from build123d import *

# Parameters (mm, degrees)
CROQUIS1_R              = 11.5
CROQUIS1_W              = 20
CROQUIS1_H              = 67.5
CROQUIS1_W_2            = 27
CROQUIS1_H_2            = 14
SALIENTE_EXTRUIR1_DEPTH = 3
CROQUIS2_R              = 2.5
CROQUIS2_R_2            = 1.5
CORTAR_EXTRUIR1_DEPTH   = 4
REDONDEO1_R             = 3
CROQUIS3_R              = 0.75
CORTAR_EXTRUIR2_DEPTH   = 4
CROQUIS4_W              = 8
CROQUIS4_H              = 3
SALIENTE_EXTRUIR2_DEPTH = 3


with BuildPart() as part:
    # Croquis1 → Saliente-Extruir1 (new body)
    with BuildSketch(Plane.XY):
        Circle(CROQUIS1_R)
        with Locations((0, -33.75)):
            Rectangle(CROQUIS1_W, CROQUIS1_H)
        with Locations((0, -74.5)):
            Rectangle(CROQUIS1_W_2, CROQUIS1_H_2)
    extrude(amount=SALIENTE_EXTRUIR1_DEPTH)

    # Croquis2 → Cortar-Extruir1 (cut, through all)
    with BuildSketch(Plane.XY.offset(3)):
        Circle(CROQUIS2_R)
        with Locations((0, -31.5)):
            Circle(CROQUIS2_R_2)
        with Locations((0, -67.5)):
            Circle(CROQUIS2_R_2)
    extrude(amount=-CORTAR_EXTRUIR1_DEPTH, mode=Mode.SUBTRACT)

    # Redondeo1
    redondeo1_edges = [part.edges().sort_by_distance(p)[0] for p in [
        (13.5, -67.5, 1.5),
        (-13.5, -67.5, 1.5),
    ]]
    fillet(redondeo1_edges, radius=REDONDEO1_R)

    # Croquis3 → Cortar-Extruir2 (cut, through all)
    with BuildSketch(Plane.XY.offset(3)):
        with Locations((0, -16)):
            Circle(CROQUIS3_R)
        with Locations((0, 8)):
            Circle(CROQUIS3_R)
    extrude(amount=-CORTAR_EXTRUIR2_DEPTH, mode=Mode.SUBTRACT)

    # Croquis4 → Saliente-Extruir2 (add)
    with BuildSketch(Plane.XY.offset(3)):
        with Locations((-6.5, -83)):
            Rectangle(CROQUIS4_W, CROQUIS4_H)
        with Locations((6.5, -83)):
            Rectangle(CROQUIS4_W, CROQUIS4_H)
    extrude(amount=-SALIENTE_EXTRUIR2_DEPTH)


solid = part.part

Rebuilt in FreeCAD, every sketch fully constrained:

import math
import FreeCAD as App
import Part
import Sketcher
from FreeCAD import Vector


def edges_at(feature, points):
    """Names of the edges that pass closest to the given points."""
    edges = feature.Shape.Edges
    near = lambda p: min(range(len(edges)), key=lambda i: edges[i].distToShape(Part.Vertex(*p))[0])
    return sorted({f"Edge{near(p) + 1}" for p in points})

doc = App.newDocument("Part")
params = doc.addObject("Spreadsheet::Sheet", "Params")
for row, (alias, value) in enumerate([
    ("sketch1_radius", "11.5 mm"),
    ("sketch1_width", "27 mm"),
    ("sketch1_height", "14 mm"),
    ("sketch1_width2", "3.5 mm"),
    ("pad1_length", "3 mm"),
    ("sketch2_diameter", "5 mm"),
    ("sketch2_diameter2", "3 mm"),
    ("fillet_radius", "3 mm"),
    ("sketch3_diameter", "1.5 mm"),
    ("sketch4_width", "8 mm"),
    ("sketch4_height", "3 mm"),
    ("pad2_length", "3 mm"),
], start=1):
    params.set(f"A{row}", alias)
    params.set(f"B{row}", "=" + value)
    params.setAlias(f"B{row}", alias)

body = doc.addObject("PartDesign::Body", "Body")

sketch1 = body.newObject("Sketcher::SketchObject", "Sketch")
sketch1.AttachmentSupport = (doc.getObject("XY_Plane"), [""])
sketch1.MapMode = "FlatFace"
sketch1.addGeometry(Part.ArcOfCircle(Part.Circle(Vector(0, 0, 0), Vector(0, 0, 1), 11.5), math.radians(-30), math.radians(210)), False)
sketch1.addGeometry(Part.LineSegment(Vector(-10, -5.7, 0), Vector(-10, -67.5, 0)), False)
sketch1.addGeometry(Part.LineSegment(Vector(-10, -67.5, 0), Vector(-13.5, -67.5, 0)), False)
sketch1.addGeometry(Part.LineSegment(Vector(-13.5, -67.5, 0), Vector(-13.5, -81.5, 0)), False)
sketch1.addGeometry(Part.LineSegment(Vector(-13.5, -81.5, 0), Vector(13.5, -81.5, 0)), False)
sketch1.addGeometry(Part.LineSegment(Vector(13.5, -81.5, 0), Vector(13.5, -67.5, 0)), False)
sketch1.addGeometry(Part.LineSegment(Vector(13.5, -67.5, 0), Vector(10, -67.5, 0)), False)
sketch1.addGeometry(Part.LineSegment(Vector(10, -67.5, 0), Vector(10, -5.7, 0)), False)
sketch1.addConstraint(Sketcher.Constraint("Coincident", 0, 2, 1, 1))
sketch1.addConstraint(Sketcher.Constraint("Coincident", 1, 2, 2, 1))
sketch1.addConstraint(Sketcher.Constraint("Coincident", 2, 2, 3, 1))
sketch1.addConstraint(Sketcher.Constraint("Coincident", 3, 2, 4, 1))
sketch1.addConstraint(Sketcher.Constraint("Coincident", 4, 2, 5, 1))
sketch1.addConstraint(Sketcher.Constraint("Coincident", 5, 2, 6, 1))
sketch1.addConstraint(Sketcher.Constraint("Coincident", 6, 2, 7, 1))
sketch1.addConstraint(Sketcher.Constraint("Coincident", 7, 2, 0, 1))
sketch1.addConstraint(Sketcher.Constraint("Vertical", 1))
sketch1.addConstraint(Sketcher.Constraint("Horizontal", 2))
sketch1.addConstraint(Sketcher.Constraint("Vertical", 3))
sketch1.addConstraint(Sketcher.Constraint("Horizontal", 4))
sketch1.addConstraint(Sketcher.Constraint("Vertical", 5))
sketch1.addConstraint(Sketcher.Constraint("Horizontal", 6))
sketch1.addConstraint(Sketcher.Constraint("Vertical", 7))
sketch1.addConstraint(Sketcher.Constraint("Coincident", 0, 3, -1, 1))
sketch1.addConstraint(Sketcher.Constraint("Symmetric", 2, 2, 5, 2, -2))
sketch1.addConstraint(Sketcher.Constraint("Horizontal", 0, 2, 7, 2))
sketch1.addConstraint(Sketcher.Constraint("Radius", 0, 11.5))
sketch1.addConstraint(Sketcher.Constraint("DistanceX", 4, 1, 4, 2, 27.0))
sketch1.addConstraint(Sketcher.Constraint("DistanceY", 3, 2, 3, 1, 14.0))
sketch1.addConstraint(Sketcher.Constraint("DistanceX", 2, 2, 2, 1, 3.5))
sketch1.addConstraint(Sketcher.Constraint("DistanceY", 1, 2, -1, 1, 67.5))
sketch1.setExpression("Constraints[18]", "Params.sketch1_radius")
sketch1.setExpression("Constraints[19]", "Params.sketch1_width")
sketch1.setExpression("Constraints[20]", "Params.sketch1_height")
sketch1.setExpression("Constraints[21]", "Params.sketch1_width2")
pad1 = body.newObject("PartDesign::Pad", "Pad")
pad1.Profile = sketch1
pad1.setExpression("Length", "Params.pad1_length")

sketch2 = body.newObject("Sketcher::SketchObject", "Sketch001")
sketch2.AttachmentSupport = (doc.getObject("XY_Plane"), [""])
sketch2.MapMode = "FlatFace"
sketch2.AttachmentOffset = App.Placement(Vector(0, 0, 3), App.Rotation())
sketch2.addGeometry(Part.Circle(Vector(0, 0, 0), Vector(0, 0, 1), 2.5), False)
sketch2.addGeometry(Part.Circle(Vector(0, -31.5, 0), Vector(0, 0, 1), 1.5), False)
sketch2.addGeometry(Part.Circle(Vector(0, -67.5, 0), Vector(0, 0, 1), 1.5), False)
sketch2.addConstraint(Sketcher.Constraint("Coincident", 0, 3, -1, 1))
sketch2.addConstraint(Sketcher.Constraint("Equal", 1, 2))
sketch2.addConstraint(Sketcher.Constraint("PointOnObject", 1, 3, -2))
sketch2.addConstraint(Sketcher.Constraint("PointOnObject", 2, 3, -2))
sketch2.addConstraint(Sketcher.Constraint("Diameter", 0, 5.0))
sketch2.addConstraint(Sketcher.Constraint("Diameter", 1, 3.0))
sketch2.addConstraint(Sketcher.Constraint("DistanceY", 2, 3, 1, 3, 36.0))
sketch2.addConstraint(Sketcher.Constraint("DistanceY", 1, 3, -1, 1, 31.5))
sketch2.setExpression("Constraints[4]", "Params.sketch2_diameter")
sketch2.setExpression("Constraints[5]", "Params.sketch2_diameter2")
pocket1 = body.newObject("PartDesign::Pocket", "Pocket")
pocket1.Profile = sketch2
pocket1.Type = "ThroughAll"
doc.recompute()

fillet = body.newObject("PartDesign::Fillet", "Fillet")
fillet.Base = (pocket1, edges_at(pocket1, [(13.5, -67.5, 1.5), (-13.5, -67.5, 1.5)]))
fillet.setExpression("Radius", "Params.fillet_radius")

sketch3 = body.newObject("Sketcher::SketchObject", "Sketch002")
sketch3.AttachmentSupport = (doc.getObject("XY_Plane"), [""])
sketch3.MapMode = "FlatFace"
sketch3.AttachmentOffset = App.Placement(Vector(0, 0, 3), App.Rotation())
sketch3.addGeometry(Part.Circle(Vector(0, -16, 0), Vector(0, 0, 1), 0.8), False)
sketch3.addGeometry(Part.Circle(Vector(0, 8, 0), Vector(0, 0, 1), 0.8), False)
sketch3.addConstraint(Sketcher.Constraint("Equal", 0, 1))
sketch3.addConstraint(Sketcher.Constraint("PointOnObject", 0, 3, -2))
sketch3.addConstraint(Sketcher.Constraint("PointOnObject", 1, 3, -2))
sketch3.addConstraint(Sketcher.Constraint("Diameter", 0, 1.5))
sketch3.addConstraint(Sketcher.Constraint("DistanceY", 0, 3, -1, 1, 16.0))
sketch3.addConstraint(Sketcher.Constraint("DistanceY", -1, 1, 1, 3, 8.0))
sketch3.setExpression("Constraints[3]", "Params.sketch3_diameter")
pocket2 = body.newObject("PartDesign::Pocket", "Pocket001")
pocket2.Profile = sketch3
pocket2.Type = "ThroughAll"

sketch4 = body.newObject("Sketcher::SketchObject", "Sketch003")
sketch4.AttachmentSupport = (doc.getObject("XY_Plane"), [""])
sketch4.MapMode = "FlatFace"
sketch4.AttachmentOffset = App.Placement(Vector(0, 0, 3), App.Rotation())
sketch4.addGeometry(Part.LineSegment(Vector(-10.5, -81.5, 0), Vector(-10.5, -84.5, 0)), False)
sketch4.addGeometry(Part.LineSegment(Vector(-10.5, -84.5, 0), Vector(-2.5, -84.5, 0)), False)
sketch4.addGeometry(Part.LineSegment(Vector(-2.5, -84.5, 0), Vector(-2.5, -81.5, 0)), False)
sketch4.addGeometry(Part.LineSegment(Vector(-2.5, -81.5, 0), Vector(-10.5, -81.5, 0)), False)
sketch4.addGeometry(Part.LineSegment(Vector(2.5, -81.5, 0), Vector(2.5, -84.5, 0)), False)
sketch4.addGeometry(Part.LineSegment(Vector(2.5, -84.5, 0), Vector(10.5, -84.5, 0)), False)
sketch4.addGeometry(Part.LineSegment(Vector(10.5, -84.5, 0), Vector(10.5, -81.5, 0)), False)
sketch4.addGeometry(Part.LineSegment(Vector(10.5, -81.5, 0), Vector(2.5, -81.5, 0)), False)
sketch4.addConstraint(Sketcher.Constraint("Coincident", 0, 2, 1, 1))
sketch4.addConstraint(Sketcher.Constraint("Coincident", 1, 2, 2, 1))
sketch4.addConstraint(Sketcher.Constraint("Coincident", 2, 2, 3, 1))
sketch4.addConstraint(Sketcher.Constraint("Coincident", 3, 2, 0, 1))
sketch4.addConstraint(Sketcher.Constraint("Coincident", 4, 2, 5, 1))
sketch4.addConstraint(Sketcher.Constraint("Coincident", 5, 2, 6, 1))
sketch4.addConstraint(Sketcher.Constraint("Coincident", 6, 2, 7, 1))
sketch4.addConstraint(Sketcher.Constraint("Coincident", 7, 2, 4, 1))
sketch4.addConstraint(Sketcher.Constraint("Vertical", 0))
sketch4.addConstraint(Sketcher.Constraint("Horizontal", 1))
sketch4.addConstraint(Sketcher.Constraint("Vertical", 2))
sketch4.addConstraint(Sketcher.Constraint("Horizontal", 3))
sketch4.addConstraint(Sketcher.Constraint("Vertical", 4))
sketch4.addConstraint(Sketcher.Constraint("Horizontal", 5))
sketch4.addConstraint(Sketcher.Constraint("Vertical", 6))
sketch4.addConstraint(Sketcher.Constraint("Horizontal", 7))
sketch4.addConstraint(Sketcher.Constraint("Symmetric", 1, 2, 4, 2, -2))
sketch4.addConstraint(Sketcher.Constraint("Symmetric", 3, 2, 6, 2, -2))
sketch4.addConstraint(Sketcher.Constraint("DistanceX", 1, 1, 1, 2, 8.0))
sketch4.addConstraint(Sketcher.Constraint("DistanceY", 0, 2, 0, 1, 3.0))
sketch4.addConstraint(Sketcher.Constraint("DistanceX", 1, 2, 4, 2, 5.0))
sketch4.addConstraint(Sketcher.Constraint("DistanceY", 0, 2, -1, 1, 84.5))
sketch4.setExpression("Constraints[18]", "Params.sketch4_width")
sketch4.setExpression("Constraints[19]", "Params.sketch4_height")
pad2 = body.newObject("PartDesign::Pad", "Pad001")
pad2.Profile = sketch4
pad2.setExpression("Length", "Params.pad2_length")
pad2.Reversed = True

doc.recompute()
